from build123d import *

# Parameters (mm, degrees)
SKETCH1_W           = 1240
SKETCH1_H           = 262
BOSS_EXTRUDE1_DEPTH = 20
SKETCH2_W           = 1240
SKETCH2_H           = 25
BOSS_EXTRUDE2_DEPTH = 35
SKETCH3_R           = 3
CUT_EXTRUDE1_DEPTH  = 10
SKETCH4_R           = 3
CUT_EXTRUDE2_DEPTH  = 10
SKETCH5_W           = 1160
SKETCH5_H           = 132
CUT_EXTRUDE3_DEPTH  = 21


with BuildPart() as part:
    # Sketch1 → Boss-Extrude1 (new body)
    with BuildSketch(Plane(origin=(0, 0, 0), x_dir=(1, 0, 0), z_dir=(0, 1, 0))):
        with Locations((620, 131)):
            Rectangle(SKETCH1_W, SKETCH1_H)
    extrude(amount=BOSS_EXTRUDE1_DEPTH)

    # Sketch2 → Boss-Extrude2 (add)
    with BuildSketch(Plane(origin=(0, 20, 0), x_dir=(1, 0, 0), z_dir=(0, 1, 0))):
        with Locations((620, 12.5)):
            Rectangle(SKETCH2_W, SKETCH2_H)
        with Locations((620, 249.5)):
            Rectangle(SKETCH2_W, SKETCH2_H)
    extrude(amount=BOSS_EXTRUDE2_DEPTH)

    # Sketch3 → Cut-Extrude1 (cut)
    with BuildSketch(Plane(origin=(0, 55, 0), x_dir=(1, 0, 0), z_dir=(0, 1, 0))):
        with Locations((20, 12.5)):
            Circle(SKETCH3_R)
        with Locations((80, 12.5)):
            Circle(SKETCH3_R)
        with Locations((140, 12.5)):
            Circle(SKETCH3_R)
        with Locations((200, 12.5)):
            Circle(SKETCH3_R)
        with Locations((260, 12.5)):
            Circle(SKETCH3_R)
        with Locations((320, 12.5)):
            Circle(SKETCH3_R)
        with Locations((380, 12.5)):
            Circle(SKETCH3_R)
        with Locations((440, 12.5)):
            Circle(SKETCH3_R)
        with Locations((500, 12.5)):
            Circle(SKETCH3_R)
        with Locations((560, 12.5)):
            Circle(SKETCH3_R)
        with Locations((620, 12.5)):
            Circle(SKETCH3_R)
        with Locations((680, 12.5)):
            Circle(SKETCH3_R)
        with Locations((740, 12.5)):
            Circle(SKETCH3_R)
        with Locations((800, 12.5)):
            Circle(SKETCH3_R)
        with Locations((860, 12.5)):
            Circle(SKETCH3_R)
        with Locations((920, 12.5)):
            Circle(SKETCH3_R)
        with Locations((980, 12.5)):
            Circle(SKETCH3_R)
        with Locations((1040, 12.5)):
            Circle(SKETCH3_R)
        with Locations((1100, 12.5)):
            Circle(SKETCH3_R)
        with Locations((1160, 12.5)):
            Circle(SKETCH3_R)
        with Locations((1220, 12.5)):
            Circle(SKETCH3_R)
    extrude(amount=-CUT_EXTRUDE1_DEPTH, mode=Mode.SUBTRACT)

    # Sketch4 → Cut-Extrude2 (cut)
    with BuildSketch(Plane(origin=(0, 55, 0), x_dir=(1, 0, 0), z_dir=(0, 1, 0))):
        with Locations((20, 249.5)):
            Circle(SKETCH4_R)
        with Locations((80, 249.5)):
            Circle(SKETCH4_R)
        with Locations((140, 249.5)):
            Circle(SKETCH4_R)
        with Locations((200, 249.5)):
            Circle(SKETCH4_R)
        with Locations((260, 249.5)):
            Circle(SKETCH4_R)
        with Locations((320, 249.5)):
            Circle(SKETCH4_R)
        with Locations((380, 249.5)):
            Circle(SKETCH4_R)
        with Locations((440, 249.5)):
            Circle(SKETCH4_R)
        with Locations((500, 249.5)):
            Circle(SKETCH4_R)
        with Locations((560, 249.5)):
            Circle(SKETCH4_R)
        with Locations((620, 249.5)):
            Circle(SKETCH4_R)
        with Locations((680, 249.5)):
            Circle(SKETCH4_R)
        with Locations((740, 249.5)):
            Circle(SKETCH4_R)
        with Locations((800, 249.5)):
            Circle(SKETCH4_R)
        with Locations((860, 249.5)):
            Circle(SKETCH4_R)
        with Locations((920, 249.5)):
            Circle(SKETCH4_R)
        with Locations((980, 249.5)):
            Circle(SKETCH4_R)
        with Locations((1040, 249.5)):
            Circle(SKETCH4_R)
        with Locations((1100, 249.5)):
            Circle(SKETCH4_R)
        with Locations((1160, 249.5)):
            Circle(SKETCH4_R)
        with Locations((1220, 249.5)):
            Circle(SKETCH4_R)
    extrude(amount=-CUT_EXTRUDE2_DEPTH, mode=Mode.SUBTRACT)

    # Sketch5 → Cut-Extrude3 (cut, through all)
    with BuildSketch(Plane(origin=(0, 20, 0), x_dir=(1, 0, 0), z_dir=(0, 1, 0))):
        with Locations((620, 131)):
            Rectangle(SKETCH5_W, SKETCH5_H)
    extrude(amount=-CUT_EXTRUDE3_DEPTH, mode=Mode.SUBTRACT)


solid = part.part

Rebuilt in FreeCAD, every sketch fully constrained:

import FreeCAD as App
import Part
import Sketcher

doc = App.newDocument("Part")
body = doc.addObject("PartDesign::Body", "Body")

# Sketch on XZ plane
sketch1 = doc.addObject("Sketcher::SketchObject", "Sketch")
body.addObject(sketch1)
sketch1.AttachmentSupport = (doc.XZ_Plane, [""])
sketch1.MapMode = "FlatFace"
sketch1.addGeometry([
    Part.LineSegment(App.Vector(0, -262, 0), App.Vector(0, 0, 0)),
    Part.LineSegment(App.Vector(0, 0, 0), App.Vector(1240, 0, 0)),
    Part.LineSegment(App.Vector(1240, 0, 0), App.Vector(1240, -262, 0)),
    Part.LineSegment(App.Vector(1240, -262, 0), App.Vector(0, -262, 0)),
], False)
sketch1.addConstraint([
    Sketcher.Constraint("Coincident", 0, 2, 1, 1),
    Sketcher.Constraint("Coincident", 1, 2, 2, 1),
    Sketcher.Constraint("Coincident", 2, 2, 3, 1),
    Sketcher.Constraint("Coincident", 3, 2, 0, 1),
    Sketcher.Constraint("Vertical", 0),
    Sketcher.Constraint("Horizontal", 1),
    Sketcher.Constraint("Vertical", 2),
    Sketcher.Constraint("Horizontal", 3),
    Sketcher.Constraint("Coincident", 0, 2, -1, 1),
    Sketcher.Constraint("DistanceX", 1, 1, 1, 2, 1240.0),
    Sketcher.Constraint("DistanceY", 0, 1, 0, 2, 262.0),
])
pad1 = doc.addObject("PartDesign::Pad", "Pad")
body.addObject(pad1)
pad1.Profile = sketch1
pad1.Length = 20
pad1.Reversed = True

# Sketch on XZ plane
sketch2 = doc.addObject("Sketcher::SketchObject", "Sketch001")
body.addObject(sketch2)
sketch2.AttachmentSupport = (doc.XZ_Plane, [""])
sketch2.MapMode = "FlatFace"
sketch2.AttachmentOffset = App.Placement(App.Vector(0, 0, -20), App.Rotation())
sketch2.addGeometry([
    Part.LineSegment(App.Vector(0, -25, 0), App.Vector(0, 0, 0)),  # 0
    Part.LineSegment(App.Vector(0, 0, 0), App.Vector(1240, 0, 0)),  # 1
    Part.LineSegment(App.Vector(1240, 0, 0), App.Vector(1240, -25, 0)),  # 2
    Part.LineSegment(App.Vector(1240, -25, 0), App.Vector(0, -25, 0)),  # 3
    Part.LineSegment(App.Vector(0, -262, 0), App.Vector(0, -237, 0)),  # 4
    Part.LineSegment(App.Vector(0, -237, 0), App.Vector(1240, -237, 0)),  # 5
    Part.LineSegment(App.Vector(1240, -237, 0), App.Vector(1240, -262, 0)),  # 6
    Part.LineSegment(App.Vector(1240, -262, 0), App.Vector(0, -262, 0)),  # 7
], False)
sketch2.addConstraint([
    Sketcher.Constraint("Coincident", 0, 2, 1, 1),
    Sketcher.Constraint("Coincident", 1, 2, 2, 1),
    Sketcher.Constraint("Coincident", 2, 2, 3, 1),
    Sketcher.Constraint("Coincident", 3, 2, 0, 1),
    Sketcher.Constraint("Coincident", 4, 2, 5, 1),
    Sketcher.Constraint("Coincident", 5, 2, 6, 1),
    Sketcher.Constraint("Coincident", 6, 2, 7, 1),
    Sketcher.Constraint("Coincident", 7, 2, 4, 1),
    Sketcher.Constraint("Vertical", 0),
    Sketcher.Constraint("Horizontal", 1),
    Sketcher.Constraint("Vertical", 2),
    Sketcher.Constraint("Horizontal", 3),
    Sketcher.Constraint("Vertical", 4),
    Sketcher.Constraint("Horizontal", 5),
    Sketcher.Constraint("Vertical", 6),
    Sketcher.Constraint("Horizontal", 7),
    Sketcher.Constraint("Coincident", 0, 2, -1, 1),
    Sketcher.Constraint("PointOnObject", 4, 2, -2),
    Sketcher.Constraint("Vertical", 2, 2, 5, 2),
    Sketcher.Constraint("Equal", 2, 4),
    Sketcher.Constraint("DistanceX", 1, 1, 1, 2, 1240.0),
    Sketcher.Constraint("DistanceY", 0, 1, 0, 2, 25.0),
    Sketcher.Constraint("DistanceY", 4, 2, -1, 1, 237.0),
])
pad2 = doc.addObject("PartDesign::Pad", "Pad001")
body.addObject(pad2)
pad2.Profile = sketch2
pad2.Length = 35
pad2.Reversed = True

# Sketch on XZ plane
sketch3 = doc.addObject("Sketcher::SketchObject", "Sketch002")
body.addObject(sketch3)
sketch3.AttachmentSupport = (doc.XZ_Plane, [""])
sketch3.MapMode = "FlatFace"
sketch3.AttachmentOffset = App.Placement(App.Vector(0, 0, -55), App.Rotation())
sketch3.addGeometry([
    Part.Circle(App.Vector(20, -12.5, 0), App.Vector(0, 0, 1), 3),  # 0
    Part.Circle(App.Vector(80, -12.5, 0), App.Vector(0, 0, 1), 3),  # 1
    Part.Circle(App.Vector(140, -12.5, 0), App.Vector(0, 0, 1), 3),  # 2
    Part.Circle(App.Vector(200, -12.5, 0), App.Vector(0, 0, 1), 3),  # 3
    Part.Circle(App.Vector(260, -12.5, 0), App.Vector(0, 0, 1), 3),  # 4
    Part.Circle(App.Vector(320, -12.5, 0), App.Vector(0, 0, 1), 3),  # 5
    Part.Circle(App.Vector(380, -12.5, 0), App.Vector(0, 0, 1), 3),  # 6
    Part.Circle(App.Vector(440, -12.5, 0), App.Vector(0, 0, 1), 3),  # 7
    Part.Circle(App.Vector(500, -12.5, 0), App.Vector(0, 0, 1), 3),  # 8
    Part.Circle(App.Vector(560, -12.5, 0), App.Vector(0, 0, 1), 3),  # 9
    Part.Circle(App.Vector(620, -12.5, 0), App.Vector(0, 0, 1), 3),  # 10
    Part.Circle(App.Vector(680, -12.5, 0), App.Vector(0, 0, 1), 3),  # 11
    Part.Circle(App.Vector(740, -12.5, 0), App.Vector(0, 0, 1), 3),  # 12
    Part.Circle(App.Vector(800, -12.5, 0), App.Vector(0, 0, 1), 3),  # 13
    Part.Circle(App.Vector(860, -12.5, 0), App.Vector(0, 0, 1), 3),  # 14
    Part.Circle(App.Vector(920, -12.5, 0), App.Vector(0, 0, 1), 3),  # 15
    Part.Circle(App.Vector(980, -12.5, 0), App.Vector(0, 0, 1), 3),  # 16
    Part.Circle(App.Vector(1040, -12.5, 0), App.Vector(0, 0, 1), 3),  # 17
    Part.Circle(App.Vector(1100, -12.5, 0), App.Vector(0, 0, 1), 3),  # 18
    Part.Circle(App.Vector(1160, -12.5, 0), App.Vector(0, 0, 1), 3),  # 19
    Part.Circle(App.Vector(1220, -12.5, 0), App.Vector(0, 0, 1), 3),  # 20
], False)
sketch3.addConstraint([
    Sketcher.Constraint("Equal", 0, 1),
    Sketcher.Constraint("Equal", 1, 2),
    Sketcher.Constraint("Equal", 2, 3),
    Sketcher.Constraint("Equal", 3, 4),
    Sketcher.Constraint("Equal", 4, 5),
    Sketcher.Constraint("Equal", 5, 6),
    Sketcher.Constraint("Equal", 6, 7),
    Sketcher.Constraint("Equal", 7, 8),
    Sketcher.Constraint("Equal", 8, 9),
    Sketcher.Constraint("Equal", 9, 10),
    Sketcher.Constraint("Equal", 10, 11),
    Sketcher.Constraint("Equal", 11, 12),
    Sketcher.Constraint("Equal", 12, 13),
    Sketcher.Constraint("Equal", 13, 14),
    Sketcher.Constraint("Equal", 14, 15),
    Sketcher.Constraint("Equal", 15, 16),
    Sketcher.Constraint("Equal", 16, 17),
    Sketcher.Constraint("Equal", 17, 18),
    Sketcher.Constraint("Equal", 18, 19),
    Sketcher.Constraint("Equal", 19, 20),
    Sketcher.Constraint("Horizontal", 0, 3, 1, 3),
    Sketcher.Constraint("Horizontal", 1, 3, 2, 3),
    Sketcher.Constraint("Horizontal", 2, 3, 3, 3),
    Sketcher.Constraint("Horizontal", 3, 3, 4, 3),
    Sketcher.Constraint("Horizontal", 4, 3, 5, 3),
    Sketcher.Constraint("Horizontal", 5, 3, 6, 3),
    Sketcher.Constraint("Horizontal", 6, 3, 7, 3),
    Sketcher.Constraint("Horizontal", 7, 3, 8, 3),
    Sketcher.Constraint("Horizontal", 8, 3, 9, 3),
    Sketcher.Constraint("Horizontal", 9, 3, 10, 3),
    Sketcher.Constraint("Horizontal", 10, 3, 11, 3),
    Sketcher.Constraint("Horizontal", 11, 3, 12, 3),
    Sketcher.Constraint("Horizontal", 12, 3, 13, 3),
    Sketcher.Constraint("Horizontal", 13, 3, 14, 3),
    Sketcher.Constraint("Horizontal", 14, 3, 15, 3),
    Sketcher.Constraint("Horizontal", 15, 3, 16, 3),
    Sketcher.Constraint("Horizontal", 16, 3, 17, 3),
    Sketcher.Constraint("Horizontal", 17, 3, 18, 3),
    Sketcher.Constraint("Horizontal", 18, 3, 19, 3),
    Sketcher.Constraint("Horizontal", 19, 3, 20, 3),
    Sketcher.Constraint("Diameter", 0, 6.0),
    Sketcher.Constraint("DistanceX", -1, 1, 0, 3, 20.0),
    Sketcher.Constraint("DistanceX", -1, 1, 1, 3, 80.0),
    Sketcher.Constraint("DistanceX", -1, 1, 2, 3, 140.0),
    Sketcher.Constraint("DistanceX", -1, 1, 3, 3, 200.0),
    Sketcher.Constraint("DistanceX", -1, 1, 4, 3, 260.0),
    Sketcher.Constraint("DistanceX", -1, 1, 5, 3, 320.0),
    Sketcher.Constraint("DistanceX", -1, 1, 6, 3, 380.0),
    Sketcher.Constraint("DistanceX", -1, 1, 7, 3, 440.0),
    Sketcher.Constraint("DistanceX", -1, 1, 8, 3, 500.0),
    Sketcher.Constraint("DistanceX", -1, 1, 9, 3, 560.0),
    Sketcher.Constraint("DistanceX", -1, 1, 10, 3, 620.0),
    Sketcher.Constraint("DistanceX", -1, 1, 11, 3, 680.0),
    Sketcher.Constraint("DistanceX", -1, 1, 12, 3, 740.0),
    Sketcher.Constraint("DistanceX", -1, 1, 13, 3, 800.0),
    Sketcher.Constraint("DistanceX", -1, 1, 14, 3, 860.0),
    Sketcher.Constraint("DistanceX", -1, 1, 15, 3, 920.0),
    Sketcher.Constraint("DistanceX", -1, 1, 16, 3, 980.0),
    Sketcher.Constraint("DistanceX", -1, 1, 17, 3, 1040.0),
    Sketcher.Constraint("DistanceX", -1, 1, 18, 3, 1100.0),
    Sketcher.Constraint("DistanceX", -1, 1, 19, 3, 1160.0),
    Sketcher.Constraint("DistanceX", -1, 1, 20, 3, 1220.0),
    Sketcher.Constraint("DistanceY", 0, 3, -1, 1, 12.5),
])
pocket1 = doc.addObject("PartDesign::Pocket", "Pocket")
body.addObject(pocket1)
pocket1.Profile = sketch3
pocket1.Length = 10
pocket1.Reversed = True

# Sketch on XZ plane
sketch4 = doc.addObject("Sketcher::SketchObject", "Sketch003")
body.addObject(sketch4)
sketch4.AttachmentSupport = (doc.XZ_Plane, [""])
sketch4.MapMode = "FlatFace"
sketch4.AttachmentOffset = App.Placement(App.Vector(0, 0, -55), App.Rotation())
sketch4.addGeometry([
    Part.Circle(App.Vector(20, -249.5, 0), App.Vector(0, 0, 1), 3),  # 0
    Part.Circle(App.Vector(80, -249.5, 0), App.Vector(0, 0, 1), 3),  # 1
    Part.Circle(App.Vector(140, -249.5, 0), App.Vector(0, 0, 1), 3),  # 2
    Part.Circle(App.Vector(200, -249.5, 0), App.Vector(0, 0, 1), 3),  # 3
    Part.Circle(App.Vector(260, -249.5, 0), App.Vector(0, 0, 1), 3),  # 4
    Part.Circle(App.Vector(320, -249.5, 0), App.Vector(0, 0, 1), 3),  # 5
    Part.Circle(App.Vector(380, -249.5, 0), App.Vector(0, 0, 1), 3),  # 6
    Part.Circle(App.Vector(440, -249.5, 0), App.Vector(0, 0, 1), 3),  # 7
    Part.Circle(App.Vector(500, -249.5, 0), App.Vector(0, 0, 1), 3),  # 8
    Part.Circle(App.Vector(560, -249.5, 0), App.Vector(0, 0, 1), 3),  # 9
    Part.Circle(App.Vector(620, -249.5, 0), App.Vector(0, 0, 1), 3),  # 10
    Part.Circle(App.Vector(680, -249.5, 0), App.Vector(0, 0, 1), 3),  # 11
    Part.Circle(App.Vector(740, -249.5, 0), App.Vector(0, 0, 1), 3),  # 12
    Part.Circle(App.Vector(800, -249.5, 0), App.Vector(0, 0, 1), 3),  # 13
    Part.Circle(App.Vector(860, -249.5, 0), App.Vector(0, 0, 1), 3),  # 14
    Part.Circle(App.Vector(920, -249.5, 0), App.Vector(0, 0, 1), 3),  # 15
    Part.Circle(App.Vector(980, -249.5, 0), App.Vector(0, 0, 1), 3),  # 16
    Part.Circle(App.Vector(1040, -249.5, 0), App.Vector(0, 0, 1), 3),  # 17
    Part.Circle(App.Vector(1100, -249.5, 0), App.Vector(0, 0, 1), 3),  # 18
    Part.Circle(App.Vector(1160, -249.5, 0), App.Vector(0, 0, 1), 3),  # 19
    Part.Circle(App.Vector(1220, -249.5, 0), App.Vector(0, 0, 1), 3),  # 20
], False)
sketch4.addConstraint([
    Sketcher.Constraint("Equal", 0, 1),
    Sketcher.Constraint("Equal", 1, 2),
    Sketcher.Constraint("Equal", 2, 3),
    Sketcher.Constraint("Equal", 3, 4),
    Sketcher.Constraint("Equal", 4, 5),
    Sketcher.Constraint("Equal", 5, 6),
    Sketcher.Constraint("Equal", 6, 7),
    Sketcher.Constraint("Equal", 7, 8),
    Sketcher.Constraint("Equal", 8, 9),
    Sketcher.Constraint("Equal", 9, 10),
    Sketcher.Constraint("Equal", 10, 11),
    Sketcher.Constraint("Equal", 11, 12),
    Sketcher.Constraint("Equal", 12, 13),
    Sketcher.Constraint("Equal", 13, 14),
    Sketcher.Constraint("Equal", 14, 15),
    Sketcher.Constraint("Equal", 15, 16),
    Sketcher.Constraint("Equal", 16, 17),
    Sketcher.Constraint("Equal", 17, 18),
    Sketcher.Constraint("Equal", 18, 19),
    Sketcher.Constraint("Equal", 19, 20),
    Sketcher.Constraint("Horizontal", 0, 3, 1, 3),
    Sketcher.Constraint("Horizontal", 1, 3, 2, 3),
    Sketcher.Constraint("Horizontal", 2, 3, 3, 3),
    Sketcher.Constraint("Horizontal", 3, 3, 4, 3),
    Sketcher.Constraint("Horizontal", 4, 3, 5, 3),
    Sketcher.Constraint("Horizontal", 5, 3, 6, 3),
    Sketcher.Constraint("Horizontal", 6, 3, 7, 3),
    Sketcher.Constraint("Horizontal", 7, 3, 8, 3),
    Sketcher.Constraint("Horizontal", 8, 3, 9, 3),
    Sketcher.Constraint("Horizontal", 9, 3, 10, 3),
    Sketcher.Constraint("Horizontal", 10, 3, 11, 3),
    Sketcher.Constraint("Horizontal", 11, 3, 12, 3),
    Sketcher.Constraint("Horizontal", 12, 3, 13, 3),
    Sketcher.Constraint("Horizontal", 13, 3, 14, 3),
    Sketcher.Constraint("Horizontal", 14, 3, 15, 3),
    Sketcher.Constraint("Horizontal", 15, 3, 16, 3),
    Sketcher.Constraint("Horizontal", 16, 3, 17, 3),
    Sketcher.Constraint("Horizontal", 17, 3, 18, 3),
    Sketcher.Constraint("Horizontal", 18, 3, 19, 3),
    Sketcher.Constraint("Horizontal", 19, 3, 20, 3),
    Sketcher.Constraint("Diameter", 0, 6.0),
    Sketcher.Constraint("DistanceX", -1, 1, 0, 3, 20.0),
    Sketcher.Constraint("DistanceX", -1, 1, 1, 3, 80.0),
    Sketcher.Constraint("DistanceX", -1, 1, 2, 3, 140.0),
    Sketcher.Constraint("DistanceX", -1, 1, 3, 3, 200.0),
    Sketcher.Constraint("DistanceX", -1, 1, 4, 3, 260.0),
    Sketcher.Constraint("DistanceX", -1, 1, 5, 3, 320.0),
    Sketcher.Constraint("DistanceX", -1, 1, 6, 3, 380.0),
    Sketcher.Constraint("DistanceX", -1, 1, 7, 3, 440.0),
    Sketcher.Constraint("DistanceX", -1, 1, 8, 3, 500.0),
    Sketcher.Constraint("DistanceX", -1, 1, 9, 3, 560.0),
    Sketcher.Constraint("DistanceX", -1, 1, 10, 3, 620.0),
    Sketcher.Constraint("DistanceX", -1, 1, 11, 3, 680.0),
    Sketcher.Constraint("DistanceX", -1, 1, 12, 3, 740.0),
    Sketcher.Constraint("DistanceX", -1, 1, 13, 3, 800.0),
    Sketcher.Constraint("DistanceX", -1, 1, 14, 3, 860.0),
    Sketcher.Constraint("DistanceX", -1, 1, 15, 3, 920.0),
    Sketcher.Constraint("DistanceX", -1, 1, 16, 3, 980.0),
    Sketcher.Constraint("DistanceX", -1, 1, 17, 3, 1040.0),
    Sketcher.Constraint("DistanceX", -1, 1, 18, 3, 1100.0),
    Sketcher.Constraint("DistanceX", -1, 1, 19, 3, 1160.0),
    Sketcher.Constraint("DistanceX", -1, 1, 20, 3, 1220.0),
    Sketcher.Constraint("DistanceY", 0, 3, -1, 1, 249.5),
])
pocket2 = doc.addObject("PartDesign::Pocket", "Pocket001")
body.addObject(pocket2)
pocket2.Profile = sketch4
pocket2.Length = 10
pocket2.Reversed = True

# Sketch on XZ plane
sketch5 = doc.addObject("Sketcher::SketchObject", "Sketch004")
body.addObject(sketch5)
sketch5.AttachmentSupport = (doc.XZ_Plane, [""])
sketch5.MapMode = "FlatFace"
sketch5.AttachmentOffset = App.Placement(App.Vector(0, 0, -20), App.Rotation())
sketch5.addGeometry([
    Part.LineSegment(App.Vector(40, -197, 0), App.Vector(40, -65, 0)),
    Part.LineSegment(App.Vector(40, -65, 0), App.Vector(1200, -65, 0)),
    Part.LineSegment(App.Vector(1200, -65, 0), App.Vector(1200, -197, 0)),
    Part.LineSegment(App.Vector(1200, -197, 0), App.Vector(40, -197, 0)),
], False)
sketch5.addConstraint([
    Sketcher.Constraint("Coincident", 0, 2, 1, 1),
    Sketcher.Constraint("Coincident", 1, 2, 2, 1),
    Sketcher.Constraint("Coincident", 2, 2, 3, 1),
    Sketcher.Constraint("Coincident", 3, 2, 0, 1),
    Sketcher.Constraint("Vertical", 0),
    Sketcher.Constraint("Horizontal", 1),
    Sketcher.Constraint("Vertical", 2),
    Sketcher.Constraint("Horizontal", 3),
    Sketcher.Constraint("DistanceX", 1, 1, 1, 2, 1160.0),
    Sketcher.Constraint("DistanceY", 0, 1, 0, 2, 132.0),
    Sketcher.Constraint("DistanceX", -1, 1, 0, 2, 40.0),
    Sketcher.Constraint("DistanceY", 0, 2, -1, 1, 65.0),
])
pocket3 = doc.addObject("PartDesign::Pocket", "Pocket002")
body.addObject(pocket3)
pocket3.Profile = sketch5
pocket3.Type = "ThroughAll"
pocket3.Reversed = True

doc.recompute()
